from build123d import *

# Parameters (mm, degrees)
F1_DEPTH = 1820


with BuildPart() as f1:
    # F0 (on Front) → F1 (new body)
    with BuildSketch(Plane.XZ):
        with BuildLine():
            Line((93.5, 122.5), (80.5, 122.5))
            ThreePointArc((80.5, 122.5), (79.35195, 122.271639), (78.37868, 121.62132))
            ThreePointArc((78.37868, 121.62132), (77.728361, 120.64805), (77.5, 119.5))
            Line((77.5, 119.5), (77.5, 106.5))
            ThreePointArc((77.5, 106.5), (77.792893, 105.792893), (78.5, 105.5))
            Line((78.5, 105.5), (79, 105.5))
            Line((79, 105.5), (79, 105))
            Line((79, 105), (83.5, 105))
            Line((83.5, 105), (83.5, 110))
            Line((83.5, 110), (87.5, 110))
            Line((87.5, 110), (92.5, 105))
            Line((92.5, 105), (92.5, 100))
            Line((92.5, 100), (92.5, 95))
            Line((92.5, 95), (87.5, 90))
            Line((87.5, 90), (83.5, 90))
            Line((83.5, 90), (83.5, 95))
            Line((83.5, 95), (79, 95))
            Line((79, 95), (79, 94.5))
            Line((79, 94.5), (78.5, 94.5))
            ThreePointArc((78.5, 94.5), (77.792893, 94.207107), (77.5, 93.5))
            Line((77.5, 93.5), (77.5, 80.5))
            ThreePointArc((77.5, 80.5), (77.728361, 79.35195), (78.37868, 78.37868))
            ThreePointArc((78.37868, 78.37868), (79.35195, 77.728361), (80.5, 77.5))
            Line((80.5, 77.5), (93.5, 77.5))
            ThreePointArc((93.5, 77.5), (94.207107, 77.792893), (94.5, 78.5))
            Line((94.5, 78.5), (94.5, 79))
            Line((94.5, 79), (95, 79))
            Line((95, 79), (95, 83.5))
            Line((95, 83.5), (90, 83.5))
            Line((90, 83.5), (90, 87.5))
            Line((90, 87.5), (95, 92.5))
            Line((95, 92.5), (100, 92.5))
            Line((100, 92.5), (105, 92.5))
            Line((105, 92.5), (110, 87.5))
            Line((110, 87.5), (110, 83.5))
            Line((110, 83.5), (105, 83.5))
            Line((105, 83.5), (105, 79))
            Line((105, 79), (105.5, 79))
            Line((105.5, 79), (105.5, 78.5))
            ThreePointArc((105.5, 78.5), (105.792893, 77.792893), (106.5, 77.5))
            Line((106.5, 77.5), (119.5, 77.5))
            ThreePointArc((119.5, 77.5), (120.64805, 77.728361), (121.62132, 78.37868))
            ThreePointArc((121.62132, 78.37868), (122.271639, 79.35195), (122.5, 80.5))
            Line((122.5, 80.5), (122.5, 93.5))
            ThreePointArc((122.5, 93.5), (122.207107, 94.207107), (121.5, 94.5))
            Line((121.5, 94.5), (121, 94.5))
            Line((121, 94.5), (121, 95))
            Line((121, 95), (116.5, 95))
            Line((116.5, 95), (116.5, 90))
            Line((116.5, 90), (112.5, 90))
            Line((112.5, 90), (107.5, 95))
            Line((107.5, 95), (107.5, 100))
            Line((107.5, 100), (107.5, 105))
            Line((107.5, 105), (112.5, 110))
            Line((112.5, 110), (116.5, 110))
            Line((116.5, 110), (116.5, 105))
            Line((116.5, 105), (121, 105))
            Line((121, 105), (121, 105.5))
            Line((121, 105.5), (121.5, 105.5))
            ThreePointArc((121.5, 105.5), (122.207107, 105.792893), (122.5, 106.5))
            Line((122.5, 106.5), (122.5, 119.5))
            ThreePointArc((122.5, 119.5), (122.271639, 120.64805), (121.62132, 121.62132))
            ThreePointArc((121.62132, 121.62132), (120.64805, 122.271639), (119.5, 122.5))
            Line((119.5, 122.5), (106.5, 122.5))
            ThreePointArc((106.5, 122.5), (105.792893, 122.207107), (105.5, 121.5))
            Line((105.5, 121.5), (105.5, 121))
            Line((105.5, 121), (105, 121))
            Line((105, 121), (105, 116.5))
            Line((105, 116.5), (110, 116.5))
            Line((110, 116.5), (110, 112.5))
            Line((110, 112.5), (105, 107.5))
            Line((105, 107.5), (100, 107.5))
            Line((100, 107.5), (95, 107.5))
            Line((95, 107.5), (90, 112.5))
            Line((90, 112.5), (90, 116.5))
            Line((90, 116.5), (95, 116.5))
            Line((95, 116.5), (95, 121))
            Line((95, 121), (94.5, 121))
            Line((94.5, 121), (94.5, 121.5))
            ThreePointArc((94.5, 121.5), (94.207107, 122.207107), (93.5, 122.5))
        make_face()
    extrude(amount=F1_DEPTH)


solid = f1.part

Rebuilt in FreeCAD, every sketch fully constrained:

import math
import FreeCAD as App
import Part
import Sketcher
from FreeCAD import Vector
Q = App.Units.Quantity

doc = App.newDocument("Part")
params = doc.addObject("Spreadsheet::Sheet", "Params")
for row, (alias, value) in enumerate([
    ("sketch1_radius", "0.999999 mm"),
    ("sketch1_width", "13 mm"),
    ("sketch1_width2", "4 mm"),
    ("sketch1_width3", "5 mm"),
    ("sketch1_width4", "10 mm"),
    ("pad1_length", "1820 mm"),
], start=1):
    params.set(f"A{row}", alias)
    params.set(f"B{row}", "=" + value)
    params.setAlias(f"B{row}", alias)

body = doc.addObject("PartDesign::Body", "Body")

sketch1 = doc.addObject("Sketcher::SketchObject", "Sketch")
body.addObject(sketch1)
sketch1.AttachmentSupport = (doc.XZ_Plane, [""])
sketch1.MapMode = "FlatFace"
sketch1.addGeometry([
    Part.LineSegment(Vector(93.5, 122.5, 0), Vector(80.5, 122.5, 0)),
    Part.ArcOfCircle(Part.Circle(Vector(80.499998, 119.500006, 0), Vector(0, 0, 1), 2.999994), math.radians(89.999963), math.radians(135.000059)),
    Part.ArcOfCircle(Part.Circle(Vector(80.499994, 119.500002, 0), Vector(0, 0, 1), 2.999994), math.radians(134.999941), math.radians(180.000037)),
    Part.LineSegment(Vector(77.5, 119.5, 0), Vector(77.5, 106.5, 0)),
    Part.ArcOfCircle(Part.Circle(Vector(78.499999, 106.499999, 0), Vector(0, 0, 1), 0.999999), math.radians(179.999957), math.radians(270.000043)),
    Part.LineSegment(Vector(78.5, 105.5, 0), Vector(79, 105.5, 0)),
    Part.LineSegment(Vector(79, 105.5, 0), Vector(79, 105, 0)),
    Part.LineSegment(Vector(79, 105, 0), Vector(83.5, 105, 0)),
    Part.LineSegment(Vector(83.5, 105, 0), Vector(83.5, 110, 0)),
    Part.LineSegment(Vector(83.5, 110, 0), Vector(87.5, 110, 0)),
    Part.LineSegment(Vector(87.5, 110, 0), Vector(92.5, 105, 0)),
    Part.LineSegment(Vector(92.5, 105, 0), Vector(92.5, 95, 0)),
    Part.LineSegment(Vector(92.5, 95, 0), Vector(87.5, 90, 0)),
    Part.LineSegment(Vector(87.5, 90, 0), Vector(83.5, 90, 0)),
    Part.LineSegment(Vector(83.5, 90, 0), Vector(83.5, 95, 0)),
    Part.LineSegment(Vector(83.5, 95, 0), Vector(79, 95, 0)),
    Part.LineSegment(Vector(79, 95, 0), Vector(79, 94.5, 0)),
    Part.LineSegment(Vector(79, 94.5, 0), Vector(78.5, 94.5, 0)),
    Part.ArcOfCircle(Part.Circle(Vector(78.499999, 93.500001, 0), Vector(0, 0, 1), 0.999999), math.radians(89.999957), math.radians(180.000043)),
    Part.LineSegment(Vector(77.5, 93.5, 0), Vector(77.5, 80.5, 0)),
    Part.ArcOfCircle(Part.Circle(Vector(80.499994, 80.499998, 0), Vector(0, 0, 1), 2.999994), math.radians(179.999963), math.radians(225.000059)),
    Part.ArcOfCircle(Part.Circle(Vector(80.499998, 80.499994, 0), Vector(0, 0, 1), 2.999994), math.radians(-135.000059), math.radians(-89.999963)),
    Part.LineSegment(Vector(80.5, 77.5, 0), Vector(93.5, 77.5, 0)),
    Part.ArcOfCircle(Part.Circle(Vector(93.500001, 78.499999, 0), Vector(0, 0, 1), 0.999999), math.radians(-90.000043), math.radians(0.000043)),
    Part.LineSegment(Vector(94.5, 78.5, 0), Vector(94.5, 79, 0)),
    Part.LineSegment(Vector(94.5, 79, 0), Vector(95, 79, 0)),
    Part.LineSegment(Vector(95, 79, 0), Vector(95, 83.5, 0)),
    Part.LineSegment(Vector(95, 83.5, 0), Vector(90, 83.5, 0)),
    Part.LineSegment(Vector(90, 83.5, 0), Vector(90, 87.5, 0)),
    Part.LineSegment(Vector(90, 87.5, 0), Vector(95, 92.5, 0)),
    Part.LineSegment(Vector(95, 92.5, 0), Vector(105, 92.5, 0)),
    Part.LineSegment(Vector(105, 92.5, 0), Vector(110, 87.5, 0)),
    Part.LineSegment(Vector(110, 87.5, 0), Vector(110, 83.5, 0)),
    Part.LineSegment(Vector(110, 83.5, 0), Vector(105, 83.5, 0)),
    Part.LineSegment(Vector(105, 83.5, 0), Vector(105, 79, 0)),
    Part.LineSegment(Vector(105, 79, 0), Vector(105.5, 79, 0)),
    Part.LineSegment(Vector(105.5, 79, 0), Vector(105.5, 78.5, 0)),
    Part.ArcOfCircle(Part.Circle(Vector(106.499999, 78.499999, 0), Vector(0, 0, 1), 0.999999), math.radians(179.999957), math.radians(270.000043)),
    Part.LineSegment(Vector(106.5, 77.5, 0), Vector(119.5, 77.5, 0)),
    Part.ArcOfCircle(Part.Circle(Vector(119.500002, 80.499994, 0), Vector(0, 0, 1), 2.999994), math.radians(-90.000037), math.radians(-44.999941)),
    Part.ArcOfCircle(Part.Circle(Vector(119.500006, 80.499998, 0), Vector(0, 0, 1), 2.999994), math.radians(-45.000059), math.radians(0.000037)),
    Part.LineSegment(Vector(122.5, 80.5, 0), Vector(122.5, 93.5, 0)),
    Part.ArcOfCircle(Part.Circle(Vector(121.500001, 93.500001, 0), Vector(0, 0, 1), 0.999999), math.radians(-0.000043), math.radians(90.000043)),
    Part.LineSegment(Vector(121.5, 94.5, 0), Vector(121, 94.5, 0)),
    Part.LineSegment(Vector(121, 94.5, 0), Vector(121, 95, 0)),
    Part.LineSegment(Vector(121, 95, 0), Vector(116.5, 95, 0)),
    Part.LineSegment(Vector(116.5, 95, 0), Vector(116.5, 90, 0)),
    Part.LineSegment(Vector(116.5, 90, 0), Vector(112.5, 90, 0)),
    Part.LineSegment(Vector(112.5, 90, 0), Vector(107.5, 95, 0)),
    Part.LineSegment(Vector(107.5, 95, 0), Vector(107.5, 105, 0)),
    Part.LineSegment(Vector(107.5, 105, 0), Vector(112.5, 110, 0)),
    Part.LineSegment(Vector(112.5, 110, 0), Vector(116.5, 110, 0)),
    Part.LineSegment(Vector(116.5, 110, 0), Vector(116.5, 105, 0)),
    Part.LineSegment(Vector(116.5, 105, 0), Vector(121, 105, 0)),
    Part.LineSegment(Vector(121, 105, 0), Vector(121, 105.5, 0)),
    Part.LineSegment(Vector(121, 105.5, 0), Vector(121.5, 105.5, 0)),
    Part.ArcOfCircle(Part.Circle(Vector(121.500001, 106.499999, 0), Vector(0, 0, 1), 0.999999), math.radians(-90.000043), math.radians(0.000043)),
    Part.LineSegment(Vector(122.5, 106.5, 0), Vector(122.5, 119.5, 0)),
    Part.ArcOfCircle(Part.Circle(Vector(119.500006, 119.500002, 0), Vector(0, 0, 1), 2.999994), math.radians(-0.000037), math.radians(45.000059)),
    Part.ArcOfCircle(Part.Circle(Vector(119.500002, 119.500006, 0), Vector(0, 0, 1), 2.999994), math.radians(44.999941), math.radians(90.000037)),
    Part.LineSegment(Vector(119.5, 122.5, 0), Vector(106.5, 122.5, 0)),
    Part.ArcOfCircle(Part.Circle(Vector(106.499999, 121.500001, 0), Vector(0, 0, 1), 0.999999), math.radians(89.999957), math.radians(180.000043)),
    Part.LineSegment(Vector(105.5, 121.5, 0), Vector(105.5, 121, 0)),
    Part.LineSegment(Vector(105.5, 121, 0), Vector(105, 121, 0)),
    Part.LineSegment(Vector(105, 121, 0), Vector(105, 116.5, 0)),
    Part.LineSegment(Vector(105, 116.5, 0), Vector(110, 116.5, 0)),
    Part.LineSegment(Vector(110, 116.5, 0), Vector(110, 112.5, 0)),
    Part.LineSegment(Vector(110, 112.5, 0), Vector(105, 107.5, 0)),
    Part.LineSegment(Vector(105, 107.5, 0), Vector(95, 107.5, 0)),
    Part.LineSegment(Vector(95, 107.5, 0), Vector(90, 112.5, 0)),
    Part.LineSegment(Vector(90, 112.5, 0), Vector(90, 116.5, 0)),
    Part.LineSegment(Vector(90, 116.5, 0), Vector(95, 116.5, 0)),
    Part.LineSegment(Vector(95, 116.5, 0), Vector(95, 121, 0)),
    Part.LineSegment(Vector(95, 121, 0), Vector(94.5, 121, 0)),
    Part.LineSegment(Vector(94.5, 121, 0), Vector(94.5, 121.5, 0)),
    Part.ArcOfCircle(Part.Circle(Vector(93.500001, 121.500001, 0), Vector(0, 0, 1), 0.999999), math.radians(-0.000043), math.radians(90.000043)),
], False)
sketch1.addConstraint([
    Sketcher.Constraint("Tangent", 0, 2, 1, 1),
    Sketcher.Constraint("Coincident", 1, 2, 2, 1),
    Sketcher.Constraint("Tangent", 2, 2, 3, 1),
    Sketcher.Constraint("Tangent", 3, 2, 4, 1),
    Sketcher.Constraint("Tangent", 4, 2, 5, 1),
    Sketcher.Constraint("Coincident", 5, 2, 6, 1),
    Sketcher.Constraint("Coincident", 6, 2, 7, 1),
    Sketcher.Constraint("Coincident", 7, 2, 8, 1),
    Sketcher.Constraint("Coincident", 8, 2, 9, 1),
    Sketcher.Constraint("Coincident", 9, 2, 10, 1),
    Sketcher.Constraint("Coincident", 10, 2, 11, 1),
    Sketcher.Constraint("Coincident", 11, 2, 12, 1),
    Sketcher.Constraint("Coincident", 12, 2, 13, 1),
    Sketcher.Constraint("Coincident", 13, 2, 14, 1),
    Sketcher.Constraint("Coincident", 14, 2, 15, 1),
    Sketcher.Constraint("Coincident", 15, 2, 16, 1),
    Sketcher.Constraint("Coincident", 16, 2, 17, 1),
    Sketcher.Constraint("Tangent", 17, 2, 18, 1),
    Sketcher.Constraint("Tangent", 18, 2, 19, 1),
    Sketcher.Constraint("Tangent", 19, 2, 20, 1),
    Sketcher.Constraint("Coincident", 20, 2, 21, 1),
    Sketcher.Constraint("Tangent", 21, 2, 22, 1),
    Sketcher.Constraint("Tangent", 22, 2, 23, 1),
    Sketcher.Constraint("Tangent", 23, 2, 24, 1),
    Sketcher.Constraint("Coincident", 24, 2, 25, 1),
    Sketcher.Constraint("Coincident", 25, 2, 26, 1),
    Sketcher.Constraint("Coincident", 26, 2, 27, 1),
    Sketcher.Constraint("Coincident", 27, 2, 28, 1),
    Sketcher.Constraint("Coincident", 28, 2, 29, 1),
    Sketcher.Constraint("Coincident", 29, 2, 30, 1),
    Sketcher.Constraint("Coincident", 30, 2, 31, 1),
    Sketcher.Constraint("Coincident", 31, 2, 32, 1),
    Sketcher.Constraint("Coincident", 32, 2, 33, 1),
    Sketcher.Constraint("Coincident", 33, 2, 34, 1),
    Sketcher.Constraint("Coincident", 34, 2, 35, 1),
    Sketcher.Constraint("Coincident", 35, 2, 36, 1),
    Sketcher.Constraint("Tangent", 36, 2, 37, 1),
    Sketcher.Constraint("Tangent", 37, 2, 38, 1),
    Sketcher.Constraint("Tangent", 38, 2, 39, 1),
    Sketcher.Constraint("Coincident", 39, 2, 40, 1),
    Sketcher.Constraint("Tangent", 40, 2, 41, 1),
    Sketcher.Constraint("Tangent", 41, 2, 42, 1),
    Sketcher.Constraint("Tangent", 42, 2, 43, 1),
    Sketcher.Constraint("Coincident", 43, 2, 44, 1),
    Sketcher.Constraint("Coincident", 44, 2, 45, 1),
    Sketcher.Constraint("Coincident", 45, 2, 46, 1),
    Sketcher.Constraint("Coincident", 46, 2, 47, 1),
    Sketcher.Constraint("Coincident", 47, 2, 48, 1),
    Sketcher.Constraint("Coincident", 48, 2, 49, 1),
    Sketcher.Constraint("Coincident", 49, 2, 50, 1),
    Sketcher.Constraint("Coincident", 50, 2, 51, 1),
    Sketcher.Constraint("Coincident", 51, 2, 52, 1),
    Sketcher.Constraint("Coincident", 52, 2, 53, 1),
    Sketcher.Constraint("Coincident", 53, 2, 54, 1),
    Sketcher.Constraint("Coincident", 54, 2, 55, 1),
    Sketcher.Constraint("Tangent", 55, 2, 56, 1),
    Sketcher.Constraint("Tangent", 56, 2, 57, 1),
    Sketcher.Constraint("Tangent", 57, 2, 58, 1),
    Sketcher.Constraint("Coincident", 58, 2, 59, 1),
    Sketcher.Constraint("Tangent", 59, 2, 60, 1),
    Sketcher.Constraint("Tangent", 60, 2, 61, 1),
    Sketcher.Constraint("Tangent", 61, 2, 62, 1),
    Sketcher.Constraint("Coincident", 62, 2, 63, 1),
    Sketcher.Constraint("Coincident", 63, 2, 64, 1),
    Sketcher.Constraint("Coincident", 64, 2, 65, 1),
    Sketcher.Constraint("Coincident", 65, 2, 66, 1),
    Sketcher.Constraint("Coincident", 66, 2, 67, 1),
    Sketcher.Constraint("Coincident", 67, 2, 68, 1),
    Sketcher.Constraint("Coincident", 68, 2, 69, 1),
    Sketcher.Constraint("Coincident", 69, 2, 70, 1),
    Sketcher.Constraint("Coincident", 70, 2, 71, 1),
    Sketcher.Constraint("Coincident", 71, 2, 72, 1),
    Sketcher.Constraint("Coincident", 72, 2, 73, 1),
    Sketcher.Constraint("Coincident", 73, 2, 74, 1),
    Sketcher.Constraint("Tangent", 74, 2, 75, 1),
    Sketcher.Constraint("Tangent", 75, 2, 0, 1),
    Sketcher.Constraint("Horizontal", 0),
    Sketcher.Constraint("Vertical", 3),
    Sketcher.Constraint("Horizontal", 5),
    Sketcher.Constraint("Vertical", 6),
    Sketcher.Constraint("Horizontal", 7),
    Sketcher.Constraint("Vertical", 8),
    Sketcher.Constraint("Horizontal", 9),
    Sketcher.Constraint("Vertical", 11),
    Sketcher.Constraint("Horizontal", 13),
    Sketcher.Constraint("Vertical", 14),
    Sketcher.Constraint("Horizontal", 15),
    Sketcher.Constraint("Vertical", 16),
    Sketcher.Constraint("Horizontal", 17),
    Sketcher.Constraint("Vertical", 19),
    Sketcher.Constraint("Horizontal", 22),
    Sketcher.Constraint("Vertical", 24),
    Sketcher.Constraint("Horizontal", 25),
    Sketcher.Constraint("Vertical", 26),
    Sketcher.Constraint("Horizontal", 27),
    Sketcher.Constraint("Vertical", 28),
    Sketcher.Constraint("Horizontal", 30),
    Sketcher.Constraint("Vertical", 32),
    Sketcher.Constraint("Horizontal", 33),
    Sketcher.Constraint("Vertical", 34),
    Sketcher.Constraint("Horizontal", 35),
    Sketcher.Constraint("Vertical", 36),
    Sketcher.Constraint("Horizontal", 38),
    Sketcher.Constraint("Vertical", 41),
    Sketcher.Constraint("Horizontal", 43),
    Sketcher.Constraint("Vertical", 44),
    Sketcher.Constraint("Horizontal", 45),
    Sketcher.Constraint("Vertical", 46),
    Sketcher.Constraint("Horizontal", 47),
    Sketcher.Constraint("Vertical", 49),
    Sketcher.Constraint("Horizontal", 51),
    Sketcher.Constraint("Vertical", 52),
    Sketcher.Constraint("Horizontal", 53),
    Sketcher.Constraint("Vertical", 54),
    Sketcher.Constraint("Horizontal", 55),
    Sketcher.Constraint("Vertical", 57),
    Sketcher.Constraint("Horizontal", 60),
    Sketcher.Constraint("Vertical", 62),
    Sketcher.Constraint("Horizontal", 63),
    Sketcher.Constraint("Vertical", 64),
    Sketcher.Constraint("Horizontal", 65),
    Sketcher.Constraint("Vertical", 66),
    Sketcher.Constraint("Horizontal", 68),
    Sketcher.Constraint("Vertical", 70),
    Sketcher.Constraint("Horizontal", 71),
    Sketcher.Constraint("Vertical", 72),
    Sketcher.Constraint("Horizontal", 73),
    Sketcher.Constraint("Vertical", 74),
    Sketcher.Constraint("Coincident", 2, 3, 1, 3),
    Sketcher.Constraint("Coincident", 21, 3, 20, 3),
    Sketcher.Constraint("Coincident", 40, 3, 39, 3),
    Sketcher.Constraint("Coincident", 59, 3, 58, 3),
    Sketcher.Constraint("Equal", 4, 18),
    Sketcher.Constraint("Equal", 2, 20),
    Sketcher.Constraint("Equal", 18, 23),
    Sketcher.Constraint("Equal", 23, 37),
    Sketcher.Constraint("Equal", 21, 39),
    Sketcher.Constraint("Equal", 37, 42),
    Sketcher.Constraint("Equal", 42, 56),
    Sketcher.Constraint("Equal", 40, 58),
    Sketcher.Constraint("Equal", 56, 61),
    Sketcher.Constraint("Equal", 61, 75),
    Sketcher.Constraint("Perpendicular", 10, 12),
    Sketcher.Constraint("Parallel", 12, 29),
    Sketcher.Constraint("Perpendicular", 29, 31),
    Sketcher.Constraint("Parallel", 31, 48),
    Sketcher.Constraint("Perpendicular", 48, 50),
    Sketcher.Constraint("Parallel", 50, 67),
    Sketcher.Constraint("Perpendicular", 67, 69),
    Sketcher.Constraint("Horizontal", 23, 3, 37, 3),
    Sketcher.Constraint("Horizontal", 18, 3, 42, 3),
    Sketcher.Constraint("Horizontal", 4, 3, 56, 3),
    Sketcher.Constraint("Horizontal", 2, 3, 58, 3),
    Sketcher.Constraint("Horizontal", 7, 2, 10, 2),
    Sketcher.Constraint("Horizontal", 11, 2, 14, 2),
    Sketcher.Constraint("Horizontal", 28, 2, 31, 2),
    Sketcher.Constraint("Horizontal", 27, 2, 32, 2),
    Sketcher.Constraint("Horizontal", 25, 2, 34, 2),
    Sketcher.Constraint("Horizontal", 20, 2, 39, 2),
    Sketcher.Constraint("Horizontal", 15, 2, 44, 2),
    Sketcher.Constraint("Horizontal", 13, 2, 46, 2),
    Sketcher.Constraint("Horizontal", 45, 2, 48, 2),
    Sketcher.Constraint("Horizontal", 10, 2, 49, 2),
    Sketcher.Constraint("Horizontal", 9, 2, 50, 2),
    Sketcher.Constraint("Horizontal", 49, 2, 52, 2),
    Sketcher.Constraint("Horizontal", 1, 2, 58, 2),
    Sketcher.Constraint("Horizontal", 66, 2, 69, 2),
    Sketcher.Constraint("Horizontal", 65, 2, 70, 2),
    Sketcher.Constraint("Horizontal", 63, 2, 72, 2),
    Sketcher.Constraint("Vertical", 4, 3, 18, 3),
    Sketcher.Constraint("Vertical", 42, 3, 56, 3),
    Sketcher.Constraint("Vertical", 37, 3, 61, 3),
    Sketcher.Constraint("Vertical", 23, 3, 75, 3),
    Sketcher.Constraint("Vertical", 9, 2, 12, 2),
    Sketcher.Constraint("Vertical", 8, 2, 13, 2),
    Sketcher.Constraint("Vertical", 6, 2, 15, 2),
    Sketcher.Constraint("Vertical", 1, 2, 20, 2),
    Sketcher.Constraint("Vertical", 26, 2, 29, 2),
    Sketcher.Constraint("Vertical", 30, 2, 33, 2),
    Sketcher.Constraint("Vertical", 47, 2, 50, 2),
    Sketcher.Constraint("Vertical", 46, 2, 51, 2),
    Sketcher.Constraint("Vertical", 44, 2, 53, 2),
    Sketcher.Constraint("Vertical", 34, 2, 63, 2),
    Sketcher.Constraint("Vertical", 32, 2, 65, 2),
    Sketcher.Constraint("Vertical", 64, 2, 67, 2),
    Sketcher.Constraint("Vertical", 29, 2, 68, 2),
    Sketcher.Constraint("Vertical", 68, 2, 71, 2),
    Sketcher.Constraint("Equal", 17, 25),
    Sketcher.Constraint("Equal", 25, 35),
    Sketcher.Constraint("Equal", 22, 38),
    Sketcher.Constraint("Equal", 35, 43),
    Sketcher.Constraint("Equal", 15, 45),
    Sketcher.Constraint("Equal", 13, 47),
    Sketcher.Constraint("Equal", 60, 3),
    Sketcher.Constraint("Equal", 73, 6),
    Sketcher.Constraint("Equal", 71, 8),
    Sketcher.Constraint("Equal", 68, 11),
    Sketcher.Constraint("Equal", 6, 16),
    Sketcher.Constraint("Equal", 3, 19),
    Sketcher.Constraint("Equal", 16, 24),
    Sketcher.Constraint("Equal", 53, 26),
    Sketcher.Constraint("Equal", 51, 28),
    Sketcher.Constraint("Equal", 54, 62),
    Sketcher.Constraint("Equal", 34, 64),
    Sketcher.Constraint("Equal", 32, 66),
    Sketcher.Constraint("Radius", 4, Q("0.999999 mm")),
    Sketcher.Constraint("DistanceX", 0, 2, 0, 1, Q("13 mm")),
    Sketcher.Constraint("DistanceX", 9, 1, 9, 2, Q("4 mm")),
    Sketcher.Constraint("DistanceX", 27, 2, 27, 1, Q("5 mm")),
    Sketcher.Constraint("DistanceX", 30, 1, 30, 2, Q("10 mm")),
    Sketcher.Constraint("DistanceX", 5, 1, 5, 2, Q("0.5 mm")),
    Sketcher.Constraint("DistanceX", 7, 1, 7, 2, Q("4.5 mm")),
    Sketcher.Constraint("DistanceX", -1, 1, 5, 2, Q("79 mm")),
    Sketcher.Constraint("DistanceY", -1, 1, 6, 2, Q("105 mm")),
    Sketcher.Constraint("DistanceY", -1, 1, 24, 2, Q("79 mm")),
    Sketcher.Constraint("DistanceX", -1, 1, 1, 2, Q("78.37868 mm")),
])
sketch1.setExpression("Constraints[205]", "Params.sketch1_radius")
sketch1.setExpression("Constraints[206]", "Params.sketch1_width")
sketch1.setExpression("Constraints[207]", "Params.sketch1_width2")
sketch1.setExpression("Constraints[208]", "Params.sketch1_width3")
sketch1.setExpression("Constraints[209]", "Params.sketch1_width4")
pad1 = doc.addObject("PartDesign::Pad", "Pad")
body.addObject(pad1)
pad1.Profile = sketch1
pad1.setExpression("Length", "Params.pad1_length")

doc.recompute()
